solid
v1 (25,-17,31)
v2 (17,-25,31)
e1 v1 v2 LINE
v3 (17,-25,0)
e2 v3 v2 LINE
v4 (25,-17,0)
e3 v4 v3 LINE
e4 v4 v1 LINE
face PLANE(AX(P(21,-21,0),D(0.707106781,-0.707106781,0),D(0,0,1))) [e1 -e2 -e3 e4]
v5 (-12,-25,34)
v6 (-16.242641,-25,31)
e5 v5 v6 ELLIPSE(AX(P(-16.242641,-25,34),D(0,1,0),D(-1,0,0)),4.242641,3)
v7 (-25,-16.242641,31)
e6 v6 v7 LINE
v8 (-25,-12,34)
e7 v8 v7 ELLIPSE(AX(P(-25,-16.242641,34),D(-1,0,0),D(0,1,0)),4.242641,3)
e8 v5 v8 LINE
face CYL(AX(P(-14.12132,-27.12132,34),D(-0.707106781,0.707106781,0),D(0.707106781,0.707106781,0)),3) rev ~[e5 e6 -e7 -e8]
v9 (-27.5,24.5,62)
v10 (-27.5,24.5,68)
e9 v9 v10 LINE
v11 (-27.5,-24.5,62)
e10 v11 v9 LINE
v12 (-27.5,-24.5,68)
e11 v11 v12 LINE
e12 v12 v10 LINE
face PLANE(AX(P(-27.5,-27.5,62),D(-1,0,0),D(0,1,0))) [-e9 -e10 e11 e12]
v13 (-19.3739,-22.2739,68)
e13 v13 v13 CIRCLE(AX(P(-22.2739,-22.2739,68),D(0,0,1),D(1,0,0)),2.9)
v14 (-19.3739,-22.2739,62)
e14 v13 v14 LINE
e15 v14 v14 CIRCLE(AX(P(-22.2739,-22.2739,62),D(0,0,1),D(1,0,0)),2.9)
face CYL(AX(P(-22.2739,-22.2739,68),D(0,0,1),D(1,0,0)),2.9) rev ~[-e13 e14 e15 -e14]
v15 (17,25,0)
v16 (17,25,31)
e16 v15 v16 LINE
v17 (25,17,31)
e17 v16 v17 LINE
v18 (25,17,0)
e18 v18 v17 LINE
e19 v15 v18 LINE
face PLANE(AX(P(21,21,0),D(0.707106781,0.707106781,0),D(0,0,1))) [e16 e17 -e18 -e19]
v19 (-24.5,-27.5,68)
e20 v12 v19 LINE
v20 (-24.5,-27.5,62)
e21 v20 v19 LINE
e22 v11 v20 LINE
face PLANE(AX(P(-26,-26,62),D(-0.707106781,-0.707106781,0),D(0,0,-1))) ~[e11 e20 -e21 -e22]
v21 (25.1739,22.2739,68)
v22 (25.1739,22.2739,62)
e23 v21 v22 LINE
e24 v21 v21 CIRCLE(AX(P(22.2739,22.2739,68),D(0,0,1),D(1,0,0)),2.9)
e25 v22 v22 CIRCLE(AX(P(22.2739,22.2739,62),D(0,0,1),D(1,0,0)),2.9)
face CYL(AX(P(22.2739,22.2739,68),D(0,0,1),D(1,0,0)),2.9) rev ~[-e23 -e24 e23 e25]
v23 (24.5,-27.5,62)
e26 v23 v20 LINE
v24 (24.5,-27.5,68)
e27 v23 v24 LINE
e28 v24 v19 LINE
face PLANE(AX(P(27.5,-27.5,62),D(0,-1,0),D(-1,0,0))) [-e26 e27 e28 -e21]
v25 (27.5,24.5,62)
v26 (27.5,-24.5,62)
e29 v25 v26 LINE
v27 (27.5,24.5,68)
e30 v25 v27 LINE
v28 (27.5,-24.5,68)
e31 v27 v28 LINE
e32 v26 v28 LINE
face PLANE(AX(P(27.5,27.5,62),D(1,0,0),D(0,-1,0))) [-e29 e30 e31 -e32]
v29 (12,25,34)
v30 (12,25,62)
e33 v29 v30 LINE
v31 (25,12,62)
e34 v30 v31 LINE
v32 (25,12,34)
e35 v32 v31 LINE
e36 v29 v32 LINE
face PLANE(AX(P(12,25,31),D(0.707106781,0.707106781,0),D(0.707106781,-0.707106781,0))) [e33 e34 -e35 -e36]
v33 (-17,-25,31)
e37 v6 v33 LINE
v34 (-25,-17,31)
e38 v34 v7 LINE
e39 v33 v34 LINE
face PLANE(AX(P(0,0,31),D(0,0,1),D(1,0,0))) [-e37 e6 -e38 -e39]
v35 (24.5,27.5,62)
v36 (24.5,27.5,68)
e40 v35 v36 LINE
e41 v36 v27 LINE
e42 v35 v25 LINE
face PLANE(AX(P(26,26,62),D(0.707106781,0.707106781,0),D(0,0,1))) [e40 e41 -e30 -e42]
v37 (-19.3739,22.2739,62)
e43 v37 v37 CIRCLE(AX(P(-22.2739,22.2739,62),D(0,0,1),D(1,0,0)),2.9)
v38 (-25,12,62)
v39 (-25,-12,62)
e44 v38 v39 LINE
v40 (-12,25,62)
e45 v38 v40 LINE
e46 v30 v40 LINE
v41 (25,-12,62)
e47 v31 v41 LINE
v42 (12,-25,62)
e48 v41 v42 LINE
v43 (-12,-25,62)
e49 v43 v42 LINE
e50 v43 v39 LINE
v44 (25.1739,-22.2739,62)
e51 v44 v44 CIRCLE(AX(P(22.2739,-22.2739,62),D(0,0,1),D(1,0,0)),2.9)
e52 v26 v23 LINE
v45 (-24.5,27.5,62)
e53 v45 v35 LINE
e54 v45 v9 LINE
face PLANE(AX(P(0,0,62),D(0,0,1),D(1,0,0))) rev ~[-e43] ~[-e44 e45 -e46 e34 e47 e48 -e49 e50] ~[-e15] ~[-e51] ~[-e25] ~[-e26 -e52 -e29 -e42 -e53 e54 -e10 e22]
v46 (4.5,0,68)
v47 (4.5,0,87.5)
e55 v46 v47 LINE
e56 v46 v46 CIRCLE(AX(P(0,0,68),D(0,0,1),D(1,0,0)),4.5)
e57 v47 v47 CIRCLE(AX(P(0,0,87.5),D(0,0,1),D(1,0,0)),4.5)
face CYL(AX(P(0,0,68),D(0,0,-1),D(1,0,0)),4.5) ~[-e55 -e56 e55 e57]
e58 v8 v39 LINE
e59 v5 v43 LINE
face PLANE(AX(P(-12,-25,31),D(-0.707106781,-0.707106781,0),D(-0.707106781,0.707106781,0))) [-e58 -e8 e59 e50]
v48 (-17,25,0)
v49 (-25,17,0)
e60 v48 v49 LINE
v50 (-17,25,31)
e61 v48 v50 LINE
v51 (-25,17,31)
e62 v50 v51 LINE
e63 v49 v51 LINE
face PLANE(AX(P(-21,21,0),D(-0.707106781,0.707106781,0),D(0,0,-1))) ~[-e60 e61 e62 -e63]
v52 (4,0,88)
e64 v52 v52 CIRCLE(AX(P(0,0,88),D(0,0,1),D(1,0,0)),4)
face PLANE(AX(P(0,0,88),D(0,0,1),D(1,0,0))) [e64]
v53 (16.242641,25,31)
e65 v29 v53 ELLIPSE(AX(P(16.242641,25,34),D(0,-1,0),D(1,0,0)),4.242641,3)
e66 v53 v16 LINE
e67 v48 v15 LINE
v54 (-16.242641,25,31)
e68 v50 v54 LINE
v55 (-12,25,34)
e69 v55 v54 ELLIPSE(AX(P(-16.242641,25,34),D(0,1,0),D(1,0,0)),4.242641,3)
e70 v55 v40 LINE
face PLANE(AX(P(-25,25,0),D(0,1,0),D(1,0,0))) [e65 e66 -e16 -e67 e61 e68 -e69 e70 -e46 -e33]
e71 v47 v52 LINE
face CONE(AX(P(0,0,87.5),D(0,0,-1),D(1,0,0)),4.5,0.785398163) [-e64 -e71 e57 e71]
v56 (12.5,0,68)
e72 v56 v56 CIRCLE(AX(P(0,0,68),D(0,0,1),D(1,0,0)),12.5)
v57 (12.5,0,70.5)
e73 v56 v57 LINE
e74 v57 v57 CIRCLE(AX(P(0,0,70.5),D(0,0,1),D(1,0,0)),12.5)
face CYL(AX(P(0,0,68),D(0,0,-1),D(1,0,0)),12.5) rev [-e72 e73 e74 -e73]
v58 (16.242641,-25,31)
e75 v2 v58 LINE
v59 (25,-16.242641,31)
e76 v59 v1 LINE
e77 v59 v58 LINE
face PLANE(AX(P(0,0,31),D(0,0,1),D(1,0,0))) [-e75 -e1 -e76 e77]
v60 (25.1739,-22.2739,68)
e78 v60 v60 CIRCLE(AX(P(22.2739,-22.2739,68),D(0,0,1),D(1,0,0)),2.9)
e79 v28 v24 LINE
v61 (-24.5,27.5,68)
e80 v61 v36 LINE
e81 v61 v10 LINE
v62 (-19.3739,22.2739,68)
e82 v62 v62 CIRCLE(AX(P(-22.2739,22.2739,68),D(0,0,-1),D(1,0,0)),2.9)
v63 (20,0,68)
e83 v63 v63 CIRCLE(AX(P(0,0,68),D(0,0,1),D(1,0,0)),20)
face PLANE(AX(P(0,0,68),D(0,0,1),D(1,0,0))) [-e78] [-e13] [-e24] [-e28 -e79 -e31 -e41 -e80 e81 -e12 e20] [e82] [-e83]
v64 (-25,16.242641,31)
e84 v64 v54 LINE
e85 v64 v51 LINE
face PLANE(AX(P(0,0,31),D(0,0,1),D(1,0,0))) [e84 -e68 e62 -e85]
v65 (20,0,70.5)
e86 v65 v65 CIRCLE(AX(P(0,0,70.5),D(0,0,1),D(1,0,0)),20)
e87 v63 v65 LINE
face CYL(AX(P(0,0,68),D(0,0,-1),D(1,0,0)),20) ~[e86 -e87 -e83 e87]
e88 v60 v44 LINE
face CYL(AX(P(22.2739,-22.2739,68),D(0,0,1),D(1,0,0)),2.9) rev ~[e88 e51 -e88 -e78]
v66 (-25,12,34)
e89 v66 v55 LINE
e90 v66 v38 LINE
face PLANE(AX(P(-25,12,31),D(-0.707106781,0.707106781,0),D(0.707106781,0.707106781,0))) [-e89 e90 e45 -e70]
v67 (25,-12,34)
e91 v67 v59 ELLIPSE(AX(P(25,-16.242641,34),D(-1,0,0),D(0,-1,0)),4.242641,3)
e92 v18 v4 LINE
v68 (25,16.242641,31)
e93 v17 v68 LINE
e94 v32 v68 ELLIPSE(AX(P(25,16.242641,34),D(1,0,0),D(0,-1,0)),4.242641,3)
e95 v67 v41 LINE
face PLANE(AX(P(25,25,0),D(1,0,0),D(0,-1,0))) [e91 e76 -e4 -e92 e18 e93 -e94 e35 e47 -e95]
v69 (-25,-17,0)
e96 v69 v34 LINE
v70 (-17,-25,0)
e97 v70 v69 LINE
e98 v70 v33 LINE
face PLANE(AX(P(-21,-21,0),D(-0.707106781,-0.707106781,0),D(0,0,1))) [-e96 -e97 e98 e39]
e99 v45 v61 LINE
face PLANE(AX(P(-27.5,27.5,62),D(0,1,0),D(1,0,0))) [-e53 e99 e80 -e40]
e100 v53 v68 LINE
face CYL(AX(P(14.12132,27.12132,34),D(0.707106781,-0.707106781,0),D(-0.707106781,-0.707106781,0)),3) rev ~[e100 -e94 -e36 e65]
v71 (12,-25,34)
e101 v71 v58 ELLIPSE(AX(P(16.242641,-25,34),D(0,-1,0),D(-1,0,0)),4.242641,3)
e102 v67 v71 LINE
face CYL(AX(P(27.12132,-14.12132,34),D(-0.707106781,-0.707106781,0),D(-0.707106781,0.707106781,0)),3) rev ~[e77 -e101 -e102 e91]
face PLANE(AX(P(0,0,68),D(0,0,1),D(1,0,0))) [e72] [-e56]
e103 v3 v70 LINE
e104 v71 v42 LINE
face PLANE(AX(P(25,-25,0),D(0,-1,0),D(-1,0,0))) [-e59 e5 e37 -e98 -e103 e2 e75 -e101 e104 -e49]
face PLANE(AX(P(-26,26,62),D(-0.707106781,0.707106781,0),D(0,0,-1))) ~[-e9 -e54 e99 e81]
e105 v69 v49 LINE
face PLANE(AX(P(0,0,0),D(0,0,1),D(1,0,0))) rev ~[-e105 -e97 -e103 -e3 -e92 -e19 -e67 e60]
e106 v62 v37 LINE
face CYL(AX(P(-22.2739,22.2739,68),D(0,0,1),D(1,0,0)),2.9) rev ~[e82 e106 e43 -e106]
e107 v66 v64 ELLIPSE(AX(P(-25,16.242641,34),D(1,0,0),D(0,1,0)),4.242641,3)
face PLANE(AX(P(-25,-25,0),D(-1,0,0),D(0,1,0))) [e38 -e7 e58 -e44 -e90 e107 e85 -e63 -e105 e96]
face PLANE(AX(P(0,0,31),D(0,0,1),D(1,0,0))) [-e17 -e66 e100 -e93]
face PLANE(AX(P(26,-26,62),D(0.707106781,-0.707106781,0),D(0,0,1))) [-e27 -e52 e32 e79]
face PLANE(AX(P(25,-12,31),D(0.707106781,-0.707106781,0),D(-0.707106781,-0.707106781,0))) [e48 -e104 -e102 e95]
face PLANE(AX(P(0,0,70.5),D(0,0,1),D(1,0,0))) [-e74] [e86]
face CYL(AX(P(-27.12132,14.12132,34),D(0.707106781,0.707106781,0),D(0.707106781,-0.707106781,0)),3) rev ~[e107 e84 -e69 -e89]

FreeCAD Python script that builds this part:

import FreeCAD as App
import Part
import Sketcher
from FreeCAD import Vector


def edges_at(feature, points):
    """Names of the edges that pass closest to the given points."""
    edges = feature.Shape.Edges
    near = lambda p: min(range(len(edges)), key=lambda i: edges[i].distToShape(Part.Vertex(*p))[0])
    return sorted({f"Edge{near(p) + 1}" for p in points})


def add_polygon(sketch, points):
    """Adds a closed chain of lines whose ends are joined by coincident constraints."""
    first, n = sketch.GeometryCount, len(points)
    for a, b in zip(points, points[1:] + points[:1]):
        sketch.addGeometry(Part.LineSegment(App.Vector(*a, 0), App.Vector(*b, 0)), False)
    for i in range(n):
        sketch.addConstraint(Sketcher.Constraint("Coincident", first + i, 2, first + (i + 1) % n, 1))

doc = App.newDocument("Part")
body = doc.addObject("PartDesign::Body", "Body")

sketch1 = body.newObject("Sketcher::SketchObject", "Sketch")
sketch1.AttachmentSupport = (doc.getObject("XY_Plane"), [""])
sketch1.MapMode = "FlatFace"
add_polygon(sketch1, [(25, 25), (-25, 25), (-25, -25), (25, -25)])
sketch1.addConstraint([
    Sketcher.Constraint("Horizontal", 0),
    Sketcher.Constraint("Vertical", 1),
    Sketcher.Constraint("Horizontal", 2),
    Sketcher.Constraint("Vertical", 3),
    Sketcher.Constraint("Symmetric", 0, 2, 2, 2, -1, 1),
    Sketcher.Constraint("Equal", 2, 1),
    Sketcher.Constraint("DistanceX", 0, 2, 0, 1, 50.0),
])
pad1 = body.newObject("PartDesign::Pad", "Pad")
pad1.Profile = sketch1
pad1.Length = 31
doc.recompute()

chamfer = body.newObject("PartDesign::Chamfer", "Chamfer")
chamfer.Base = (pad1, edges_at(pad1, [
    (25, 25, 15.5),
    (-25, 25, 15.5),
    (-25, -25, 15.5),
    (25, -25, 15.5),
]))
chamfer.Size = 8

sketch2 = body.newObject("Sketcher::SketchObject", "Sketch001")
sketch2.AttachmentSupport = (doc.getObject("XY_Plane"), [""])
sketch2.MapMode = "FlatFace"
sketch2.AttachmentOffset = App.Placement(Vector(0, 0, 31), App.Rotation())
add_polygon(sketch2, [(25, 12), (12, 25), (-12, 25), (-25, 12), (-25, -12), (-12, -25), (12, -25), (25, -12)])
sketch2.addConstraint([
    Sketcher.Constraint("Horizontal", 1),
    Sketcher.Constraint("Vertical", 3),
    Sketcher.Constraint("Horizontal", 5),
    Sketcher.Constraint("Vertical", 7),
    Sketcher.Constraint("Symmetric", 0, 2, 4, 2, -1, 1),
    Sketcher.Constraint("Symmetric", 2, 2, 6, 2, -1, 1),
    Sketcher.Constraint("Perpendicular", 0, 2),
    Sketcher.Constraint("Perpendicular", 2, 4),
    Sketcher.Constraint("Perpendicular", 4, 6),
    Sketcher.Constraint("Horizontal", 3, 2, 6, 2),
    Sketcher.Constraint("Vertical", 1, 2, 4, 2),
    Sketcher.Constraint("Equal", 5, 3),
    Sketcher.Constraint("DistanceX", 1, 2, 1, 1, 24.0),
    Sketcher.Constraint("DistanceY", -1, 1, 0, 2, 25.0),
])
pad2 = body.newObject("PartDesign::Pad", "Pad001")
pad2.Profile = sketch2
pad2.Length = 31

sketch3 = body.newObject("Sketcher::SketchObject", "Sketch002")
sketch3.AttachmentSupport = (doc.getObject("XY_Plane"), [""])
sketch3.MapMode = "FlatFace"
sketch3.AttachmentOffset = App.Placement(Vector(0, 0, 62), App.Rotation())
add_polygon(sketch3, [(28, 28), (-28, 28), (-28, -28), (28, -28)])
sketch3.addConstraint([
    Sketcher.Constraint("Horizontal", 0),
    Sketcher.Constraint("Vertical", 1),
    Sketcher.Constraint("Horizontal", 2),
    Sketcher.Constraint("Vertical", 3),
    Sketcher.Constraint("Symmetric", 0, 2, 2, 2, -1, 1),
    Sketcher.Constraint("Equal", 2, 1),
    Sketcher.Constraint("DistanceX", 0, 2, 0, 1, 55.0),
])
pad3 = body.newObject("PartDesign::Pad", "Pad002")
pad3.Profile = sketch3
pad3.Length = 6

sketch4 = body.newObject("Sketcher::SketchObject", "Sketch003")
sketch4.AttachmentSupport = (doc.getObject("XY_Plane"), [""])
sketch4.MapMode = "FlatFace"
sketch4.AttachmentOffset = App.Placement(Vector(0, 0, 68), App.Rotation())
sketch4.addGeometry([
    Part.Circle(Vector(0, 0, 0), Vector(0, 0, 1), 20),
    Part.Circle(Vector(0, 0, 0), Vector(0, 0, 1), 12),
], False)
sketch4.addConstraint([
    Sketcher.Constraint("Coincident", 0, 3, -1, 1),
    Sketcher.Constraint("Coincident", 1, 3, -1, 1),
    Sketcher.Constraint("Diameter", 0, 40.0),
    Sketcher.Constraint("Diameter", 1, 25.0),
])
pad4 = body.newObject("PartDesign::Pad", "Pad003")
pad4.Profile = sketch4
pad4.Length = 2.5

sketch5 = body.newObject("Sketcher::SketchObject", "Sketch004")
sketch5.AttachmentSupport = (doc.getObject("XY_Plane"), [""])
sketch5.MapMode = "FlatFace"
sketch5.AttachmentOffset = App.Placement(Vector(0, 0, 68), App.Rotation())
sketch5.addGeometry(Part.Circle(Vector(0, 0, 0), Vector(0, 0, 1), 4.5), False)
sketch5.addConstraint([
    Sketcher.Constraint("Coincident", 0, 3, -1, 1),
    Sketcher.Constraint("Diameter", 0, 9.0),
])
pad5 = body.newObject("PartDesign::Pad", "Pad004")
pad5.Profile = sketch5
pad5.Length = 20

sketch6 = body.newObject("Sketcher::SketchObject", "Sketch005")
sketch6.AttachmentSupport = (doc.getObject("XY_Plane"), [""])
sketch6.MapMode = "FlatFace"
sketch6.AttachmentOffset = App.Placement(Vector(0, 0, 68), App.Rotation())
sketch6.addGeometry([
    Part.Circle(Vector(-22.3, 22.3, 0), Vector(0, 0, 1), 2.9),
    Part.Circle(Vector(-22.3, -22.3, 0), Vector(0, 0, 1), 2.9),
    Part.Circle(Vector(22.3, -22.3, 0), Vector(0, 0, 1), 2.9),
    Part.Circle(Vector(22.3, 22.3, 0), Vector(0, 0, 1), 2.9),
], False)
sketch6.addConstraint([
    Sketcher.Constraint("Equal", 0, 1),
    Sketcher.Constraint("Equal", 1, 2),
    Sketcher.Constraint("Equal", 2, 3),
    Sketcher.Constraint("Symmetric", 0, 3, 2, 3, -1, 1),
    Sketcher.Constraint("Symmetric", 1, 3, 3, 3, -1, 1),
    Sketcher.Constraint("Symmetric", 1, 3, 2, 3, -2),
    Sketcher.Constraint("Diameter", 0, 5.8),
    Sketcher.Constraint("DistanceX", 0, 3, -1, 1, 22.274),
    Sketcher.Constraint("DistanceY", -1, 1, 0, 3, 22.274),
])
pocket1 = body.newObject("PartDesign::Pocket", "Pocket")
pocket1.Profile = sketch6
pocket1.Length = 6
doc.recompute()

chamfer2 = body.newObject("PartDesign::Chamfer", "Chamfer001")
chamfer2.Base = (pocket1, edges_at(pocket1, [
    (-27.5, 27.5, 65),
    (27.5, 27.5, 65),
    (27.5, -27.5, 65),
    (-27.5, -27.5, 65),
]))
chamfer2.Size = 3
doc.recompute()

fillet = body.newObject("PartDesign::Fillet", "Fillet")
fillet.Base = (chamfer2, edges_at(chamfer2, [
    (18.5, 18.5, 31),
    (18.5, -18.5, 31),
    (-18.5, 18.5, 31),
    (-18.5, -18.5, 31),
]))
fillet.Radius = 3
doc.recompute()

chamfer3 = body.newObject("PartDesign::Chamfer", "Chamfer002")
chamfer3.Base = (fillet, edges_at(fillet, [(-4.5, 0, 88)]))
chamfer3.Size = 0.5

doc.recompute()
